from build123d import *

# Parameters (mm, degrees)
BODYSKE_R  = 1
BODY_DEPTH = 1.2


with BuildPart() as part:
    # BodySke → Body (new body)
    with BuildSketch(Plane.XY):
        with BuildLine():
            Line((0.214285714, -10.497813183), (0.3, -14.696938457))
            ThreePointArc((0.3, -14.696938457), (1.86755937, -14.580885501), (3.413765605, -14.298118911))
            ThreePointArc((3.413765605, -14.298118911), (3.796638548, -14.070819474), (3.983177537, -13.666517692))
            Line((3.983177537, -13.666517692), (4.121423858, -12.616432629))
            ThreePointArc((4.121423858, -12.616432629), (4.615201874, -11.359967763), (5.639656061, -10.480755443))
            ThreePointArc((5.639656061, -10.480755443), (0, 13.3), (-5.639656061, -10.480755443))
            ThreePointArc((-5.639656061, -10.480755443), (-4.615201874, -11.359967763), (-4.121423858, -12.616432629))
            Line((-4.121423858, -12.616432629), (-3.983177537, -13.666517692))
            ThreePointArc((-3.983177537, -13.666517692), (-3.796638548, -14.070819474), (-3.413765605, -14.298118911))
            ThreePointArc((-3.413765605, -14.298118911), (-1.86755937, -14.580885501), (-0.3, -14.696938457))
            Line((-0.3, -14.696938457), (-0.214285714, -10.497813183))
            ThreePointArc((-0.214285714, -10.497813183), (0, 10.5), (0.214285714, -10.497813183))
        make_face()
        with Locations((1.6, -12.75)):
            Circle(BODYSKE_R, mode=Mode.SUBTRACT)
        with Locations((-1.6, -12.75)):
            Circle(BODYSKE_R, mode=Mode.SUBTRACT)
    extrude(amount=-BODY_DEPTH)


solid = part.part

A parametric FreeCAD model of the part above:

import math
import FreeCAD as App
import Part
import Sketcher
from FreeCAD import Vector
Q = App.Units.Quantity

doc = App.newDocument("Part")
body = doc.addObject("PartDesign::Body", "Body")

# Sketch on XY plane
sketch1 = body.newObject("Sketcher::SketchObject", "Sketch")
sketch1.AttachmentSupport = (doc.getObject("XY_Plane"), [""])
sketch1.MapMode = "FlatFace"
sketch1.addGeometry(Part.LineSegment(Vector(0.214286, -10.497813, 0), Vector(0.3, -14.696938, 0)), False)
sketch1.addGeometry(Part.ArcOfCircle(Part.Circle(Vector(0, 0, 0), Vector(0, 0, 1), 14.7), math.radians(-88.830617), math.radians(-76.571665)), False)
sketch1.addGeometry(Part.ArcOfCircle(Part.Circle(Vector(3.239594, -13.568623, 0), Vector(0, 0, 1), 0.75), math.radians(-76.571665), math.radians(-7.5)), False)
sketch1.addGeometry(Part.LineSegment(Vector(3.983178, -13.666518, 0), Vector(4.121424, -12.616433, 0)), False)
sketch1.addGeometry(Part.ArcOfCircle(Part.Circle(Vector(6.8966, -12.981791, 0), Vector(0, 0, 1), 2.799123), math.radians(116.682696), math.radians(172.5)), False)
sketch1.addGeometry(Part.ArcOfCircle(Part.Circle(Vector(0, 0.740894, 0), Vector(0, 0, 1), 12.559106), math.radians(-63.317304), math.radians(243.317304)), False)
sketch1.addGeometry(Part.ArcOfCircle(Part.Circle(Vector(-6.8966, -12.981791, 0), Vector(0, 0, 1), 2.799123), math.radians(7.5), math.radians(63.317304)), False)
sketch1.addGeometry(Part.LineSegment(Vector(-4.121424, -12.616433, 0), Vector(-3.983178, -13.666518, 0)), False)
sketch1.addGeometry(Part.ArcOfCircle(Part.Circle(Vector(-3.239594, -13.568623, 0), Vector(0, 0, 1), 0.75), math.radians(-172.5), math.radians(-103.428335)), False)
sketch1.addGeometry(Part.ArcOfCircle(Part.Circle(Vector(0, 0, 0), Vector(0, 0, 1), 14.7), math.radians(-103.428335), math.radians(-91.169383)), False)
sketch1.addGeometry(Part.LineSegment(Vector(-0.3, -14.696938, 0), Vector(-0.214286, -10.497813, 0)), False)
sketch1.addGeometry(Part.ArcOfCircle(Part.Circle(Vector(0, 0, 0), Vector(0, 0, 1), 10.5), math.radians(-88.830617), math.radians(268.830617)), False)
sketch1.addGeometry(Part.Circle(Vector(-1.6, -12.75, 0), Vector(0, 0, 1), 1), False)
sketch1.addGeometry(Part.Circle(Vector(1.6, -12.75, 0), Vector(0, 0, 1), 1), False)
sketch1.addConstraint(Sketcher.Constraint("Coincident", 0, 2, 1, 1))
sketch1.addConstraint(Sketcher.Constraint("Tangent", 1, 2, 2, 1))
sketch1.addConstraint(Sketcher.Constraint("Tangent", 2, 2, 3, 1))
sketch1.addConstraint(Sketcher.Constraint("Tangent", 3, 2, 4, 2))
sketch1.addConstraint(Sketcher.Constraint("Tangent", 4, 1, 5, 1))
sketch1.addConstraint(Sketcher.Constraint("Tangent", 5, 2, 6, 2))
sketch1.addConstraint(Sketcher.Constraint("Tangent", 6, 1, 7, 1))
sketch1.addConstraint(Sketcher.Constraint("Tangent", 7, 2, 8, 1))
sketch1.addConstraint(Sketcher.Constraint("Tangent", 8, 2, 9, 1))
sketch1.addConstraint(Sketcher.Constraint("Coincident", 9, 2, 10, 1))
sketch1.addConstraint(Sketcher.Constraint("Coincident", 10, 2, 11, 2))
sketch1.addConstraint(Sketcher.Constraint("Coincident", 11, 1, 0, 1))
sketch1.addConstraint(Sketcher.Constraint("Coincident", 1, 3, -1, 1))
sketch1.addConstraint(Sketcher.Constraint("Coincident", 9, 3, -1, 1))
sketch1.addConstraint(Sketcher.Constraint("Coincident", 11, 3, -1, 1))
sketch1.addConstraint(Sketcher.Constraint("Equal", 4, 6))
sketch1.addConstraint(Sketcher.Constraint("Equal", 2, 8))
sketch1.addConstraint(Sketcher.Constraint("Equal", 1, 9))
sketch1.addConstraint(Sketcher.Constraint("Equal", 12, 13))
sketch1.addConstraint(Sketcher.Constraint("Symmetric", 4, 3, 6, 3, -2))
sketch1.addConstraint(Sketcher.Constraint("Symmetric", 12, 3, 13, 3, -2))
sketch1.addConstraint(Sketcher.Constraint("Horizontal", 2, 3, 8, 3))
sketch1.addConstraint(Sketcher.Constraint("Horizontal", 0, 2, 9, 2))
sketch1.addConstraint(Sketcher.Constraint("Horizontal", 10, 2, 11, 1))
sketch1.addConstraint(Sketcher.Constraint("Diameter", 12, 2.0))
sketch1.addConstraint(Sketcher.Constraint("Radius", 1, 14.7))
sketch1.addConstraint(Sketcher.Constraint("Radius", 11, 10.5))
sketch1.addConstraint(Sketcher.Constraint("Radius", 2, 0.75))
sketch1.addConstraint(Sketcher.Constraint("Angle", 3, Q("82.5 deg")))
sketch1.addConstraint(Sketcher.Constraint("DistanceX", 12, 3, -1, 1, 1.6))
sketch1.addConstraint(Sketcher.Constraint("DistanceX", -1, 1, 0, 2, 0.3))
sketch1.addConstraint(Sketcher.Constraint("DistanceY", 12, 3, -1, 1, 12.75))
sketch1.addConstraint(Sketcher.Constraint("Radius", 4, 2.799123))
sketch1.addConstraint(Sketcher.Constraint("Radius", 5, 12.559106))
sketch1.addConstraint(Sketcher.Constraint("DistanceX", -1, 1, 4, 3, 6.8966))
sketch1.addConstraint(Sketcher.Constraint("DistanceY", 4, 3, -1, 1, 12.981791))
sketch1.addConstraint(Sketcher.Constraint("DistanceX", 8, 3, 10, 2, 3.025308))
pad1 = body.newObject("PartDesign::Pad", "Pad")
pad1.Profile = sketch1
pad1.Length = 1.2
pad1.Reversed = True

doc.recompute()
